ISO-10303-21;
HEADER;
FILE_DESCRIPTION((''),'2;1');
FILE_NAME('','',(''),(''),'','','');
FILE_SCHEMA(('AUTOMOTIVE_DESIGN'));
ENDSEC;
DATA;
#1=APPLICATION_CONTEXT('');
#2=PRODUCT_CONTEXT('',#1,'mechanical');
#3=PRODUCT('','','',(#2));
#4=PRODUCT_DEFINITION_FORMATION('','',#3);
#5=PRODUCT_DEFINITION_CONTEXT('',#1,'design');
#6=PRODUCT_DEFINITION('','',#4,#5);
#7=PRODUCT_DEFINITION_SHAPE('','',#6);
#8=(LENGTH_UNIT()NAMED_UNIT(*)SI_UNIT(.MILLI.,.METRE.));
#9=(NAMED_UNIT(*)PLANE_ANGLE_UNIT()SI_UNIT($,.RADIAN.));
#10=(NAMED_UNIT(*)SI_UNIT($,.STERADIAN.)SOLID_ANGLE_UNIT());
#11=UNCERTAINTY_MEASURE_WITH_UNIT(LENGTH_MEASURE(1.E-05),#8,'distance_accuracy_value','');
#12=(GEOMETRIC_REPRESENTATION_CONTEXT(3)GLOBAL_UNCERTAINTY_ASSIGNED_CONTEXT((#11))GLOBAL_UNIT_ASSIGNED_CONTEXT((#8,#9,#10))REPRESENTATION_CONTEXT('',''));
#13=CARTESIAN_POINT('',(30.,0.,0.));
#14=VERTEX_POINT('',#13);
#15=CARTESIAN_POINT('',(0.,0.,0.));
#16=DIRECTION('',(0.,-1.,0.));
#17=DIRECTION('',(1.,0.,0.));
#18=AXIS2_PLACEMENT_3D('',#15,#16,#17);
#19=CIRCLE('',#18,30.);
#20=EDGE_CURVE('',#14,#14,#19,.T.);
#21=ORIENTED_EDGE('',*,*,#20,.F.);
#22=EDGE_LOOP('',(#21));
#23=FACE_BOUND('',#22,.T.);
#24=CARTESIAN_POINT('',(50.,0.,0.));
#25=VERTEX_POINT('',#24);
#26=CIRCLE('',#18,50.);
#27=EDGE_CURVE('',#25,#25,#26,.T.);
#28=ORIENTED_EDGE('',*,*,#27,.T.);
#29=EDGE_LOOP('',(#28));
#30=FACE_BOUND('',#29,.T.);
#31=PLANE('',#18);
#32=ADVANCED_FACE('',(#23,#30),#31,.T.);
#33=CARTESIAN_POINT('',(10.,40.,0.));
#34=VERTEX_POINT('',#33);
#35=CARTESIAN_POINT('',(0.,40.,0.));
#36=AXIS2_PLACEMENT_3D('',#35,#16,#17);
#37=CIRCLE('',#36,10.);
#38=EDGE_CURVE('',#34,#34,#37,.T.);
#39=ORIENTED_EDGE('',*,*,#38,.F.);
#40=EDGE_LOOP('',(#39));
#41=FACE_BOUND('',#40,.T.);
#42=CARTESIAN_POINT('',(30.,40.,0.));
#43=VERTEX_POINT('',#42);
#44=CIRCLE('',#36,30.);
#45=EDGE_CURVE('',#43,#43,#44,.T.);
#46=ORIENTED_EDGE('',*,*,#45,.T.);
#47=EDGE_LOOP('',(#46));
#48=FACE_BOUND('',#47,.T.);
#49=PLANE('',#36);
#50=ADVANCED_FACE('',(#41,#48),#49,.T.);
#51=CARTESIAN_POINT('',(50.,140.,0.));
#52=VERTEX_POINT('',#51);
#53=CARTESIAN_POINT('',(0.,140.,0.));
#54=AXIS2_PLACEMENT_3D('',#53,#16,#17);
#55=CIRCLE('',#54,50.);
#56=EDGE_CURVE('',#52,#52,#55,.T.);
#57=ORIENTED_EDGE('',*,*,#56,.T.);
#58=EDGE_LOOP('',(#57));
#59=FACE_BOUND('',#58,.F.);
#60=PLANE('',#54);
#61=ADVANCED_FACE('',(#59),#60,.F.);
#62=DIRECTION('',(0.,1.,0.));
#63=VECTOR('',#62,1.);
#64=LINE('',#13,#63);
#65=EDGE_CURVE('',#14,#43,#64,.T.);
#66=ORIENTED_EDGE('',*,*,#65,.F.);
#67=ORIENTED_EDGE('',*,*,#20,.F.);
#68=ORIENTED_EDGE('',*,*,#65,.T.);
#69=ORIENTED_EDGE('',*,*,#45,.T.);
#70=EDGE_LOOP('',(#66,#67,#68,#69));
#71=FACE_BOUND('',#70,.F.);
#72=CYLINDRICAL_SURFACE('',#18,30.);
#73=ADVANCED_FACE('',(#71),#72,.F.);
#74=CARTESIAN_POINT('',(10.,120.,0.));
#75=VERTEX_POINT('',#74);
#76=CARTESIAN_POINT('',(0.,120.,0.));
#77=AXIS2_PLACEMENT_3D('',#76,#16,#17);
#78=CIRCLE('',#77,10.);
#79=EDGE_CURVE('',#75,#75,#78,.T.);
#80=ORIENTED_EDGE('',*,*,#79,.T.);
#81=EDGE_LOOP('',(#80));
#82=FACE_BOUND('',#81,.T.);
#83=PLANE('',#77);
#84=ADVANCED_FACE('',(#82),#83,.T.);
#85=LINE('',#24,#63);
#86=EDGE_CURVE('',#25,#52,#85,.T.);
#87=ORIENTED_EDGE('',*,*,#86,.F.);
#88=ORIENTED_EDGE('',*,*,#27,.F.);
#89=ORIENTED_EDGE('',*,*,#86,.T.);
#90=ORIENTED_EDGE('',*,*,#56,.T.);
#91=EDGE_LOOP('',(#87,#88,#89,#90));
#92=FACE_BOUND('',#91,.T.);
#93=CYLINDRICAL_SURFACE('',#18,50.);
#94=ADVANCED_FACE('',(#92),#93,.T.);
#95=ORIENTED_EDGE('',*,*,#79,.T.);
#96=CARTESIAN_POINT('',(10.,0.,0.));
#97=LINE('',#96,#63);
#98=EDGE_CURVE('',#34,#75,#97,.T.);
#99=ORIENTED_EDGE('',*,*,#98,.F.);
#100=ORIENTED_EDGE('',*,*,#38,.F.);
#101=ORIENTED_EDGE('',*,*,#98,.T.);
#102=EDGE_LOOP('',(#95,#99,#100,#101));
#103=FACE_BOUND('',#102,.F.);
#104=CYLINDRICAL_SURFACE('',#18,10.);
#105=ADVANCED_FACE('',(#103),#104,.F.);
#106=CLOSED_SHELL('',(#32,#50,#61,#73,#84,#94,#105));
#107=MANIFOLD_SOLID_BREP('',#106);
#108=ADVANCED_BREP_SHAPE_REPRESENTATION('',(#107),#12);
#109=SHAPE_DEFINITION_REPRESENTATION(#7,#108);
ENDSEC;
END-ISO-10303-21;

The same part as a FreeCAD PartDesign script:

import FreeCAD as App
import Part
import Sketcher

doc = App.newDocument("Part")
params = doc.addObject("Spreadsheet::Sheet", "Params")
for row, (alias, value) in enumerate([
    ("sketch1_diameter", "100 mm"),
    ("pad1_length", "140 mm"),
    ("sketch2_diameter", "20 mm"),
    ("pocket1_length", "120 mm"),
    ("sketch3_diameter", "60 mm"),
    ("sketch3_diameter2", "20 mm"),
    ("pocket2_length", "40 mm"),
], start=1):
    params.set(f"A{row}", alias)
    params.set(f"B{row}", "=" + value)
    params.setAlias(f"B{row}", alias)

body = doc.addObject("PartDesign::Body", "Body")

# Sketch on XZ plane
sketch1 = body.newObject("Sketcher::SketchObject", "Sketch")
sketch1.AttachmentSupport = (doc.getObject("XZ_Plane"), [""])
sketch1.MapMode = "FlatFace"
sketch1.addGeometry(Part.Circle(App.Vector(0, 0, 0), App.Vector(0, 0, 1), 50), False)
sketch1.addConstraint(Sketcher.Constraint("Coincident", 0, 3, -1, 1))
sketch1.addConstraint(Sketcher.Constraint("Diameter", 0, 100.0))
sketch1.setExpression("Constraints[1]", "Params.sketch1_diameter")
pad1 = body.newObject("PartDesign::Pad", "Pad")
pad1.Profile = sketch1
pad1.setExpression("Length", "Params.pad1_length")
pad1.Reversed = True

# Sketch on XZ plane
sketch2 = body.newObject("Sketcher::SketchObject", "Sketch001")
sketch2.AttachmentSupport = (doc.getObject("XZ_Plane"), [""])
sketch2.MapMode = "FlatFace"
sketch2.addGeometry(Part.Circle(App.Vector(0, 0, 0), App.Vector(0, 0, 1), 10), False)
sketch2.addConstraint(Sketcher.Constraint("Coincident", 0, 3, -1, 1))
sketch2.addConstraint(Sketcher.Constraint("Diameter", 0, 20.0))
sketch2.setExpression("Constraints[1]", "Params.sketch2_diameter")
pocket1 = body.newObject("PartDesign::Pocket", "Pocket")
pocket1.Profile = sketch2
pocket1.setExpression("Length", "Params.pocket1_length")

# Sketch on XZ plane
sketch3 = body.newObject("Sketcher::SketchObject", "Sketch002")
sketch3.AttachmentSupport = (doc.getObject("XZ_Plane"), [""])
sketch3.MapMode = "FlatFace"
sketch3.addGeometry(Part.Circle(App.Vector(0, 0, 0), App.Vector(0, 0, 1), 30), False)
sketch3.addGeometry(Part.Circle(App.Vector(0, 0, 0), App.Vector(0, 0, 1), 10), False)
sketch3.addConstraint(Sketcher.Constraint("Coincident", 0, 3, -1, 1))
sketch3.addConstraint(Sketcher.Constraint("Coincident", 1, 3, -1, 1))
sketch3.addConstraint(Sketcher.Constraint("Diameter", 0, 60.0))
sketch3.addConstraint(Sketcher.Constraint("Diameter", 1, 20.0))
sketch3.setExpression("Constraints[2]", "Params.sketch3_diameter")
sketch3.setExpression("Constraints[3]", "Params.sketch3_diameter2")
pocket2 = body.newObject("PartDesign::Pocket", "Pocket001")
pocket2.Profile = sketch3
pocket2.setExpression("Length", "Params.pocket2_length")

doc.recompute()
